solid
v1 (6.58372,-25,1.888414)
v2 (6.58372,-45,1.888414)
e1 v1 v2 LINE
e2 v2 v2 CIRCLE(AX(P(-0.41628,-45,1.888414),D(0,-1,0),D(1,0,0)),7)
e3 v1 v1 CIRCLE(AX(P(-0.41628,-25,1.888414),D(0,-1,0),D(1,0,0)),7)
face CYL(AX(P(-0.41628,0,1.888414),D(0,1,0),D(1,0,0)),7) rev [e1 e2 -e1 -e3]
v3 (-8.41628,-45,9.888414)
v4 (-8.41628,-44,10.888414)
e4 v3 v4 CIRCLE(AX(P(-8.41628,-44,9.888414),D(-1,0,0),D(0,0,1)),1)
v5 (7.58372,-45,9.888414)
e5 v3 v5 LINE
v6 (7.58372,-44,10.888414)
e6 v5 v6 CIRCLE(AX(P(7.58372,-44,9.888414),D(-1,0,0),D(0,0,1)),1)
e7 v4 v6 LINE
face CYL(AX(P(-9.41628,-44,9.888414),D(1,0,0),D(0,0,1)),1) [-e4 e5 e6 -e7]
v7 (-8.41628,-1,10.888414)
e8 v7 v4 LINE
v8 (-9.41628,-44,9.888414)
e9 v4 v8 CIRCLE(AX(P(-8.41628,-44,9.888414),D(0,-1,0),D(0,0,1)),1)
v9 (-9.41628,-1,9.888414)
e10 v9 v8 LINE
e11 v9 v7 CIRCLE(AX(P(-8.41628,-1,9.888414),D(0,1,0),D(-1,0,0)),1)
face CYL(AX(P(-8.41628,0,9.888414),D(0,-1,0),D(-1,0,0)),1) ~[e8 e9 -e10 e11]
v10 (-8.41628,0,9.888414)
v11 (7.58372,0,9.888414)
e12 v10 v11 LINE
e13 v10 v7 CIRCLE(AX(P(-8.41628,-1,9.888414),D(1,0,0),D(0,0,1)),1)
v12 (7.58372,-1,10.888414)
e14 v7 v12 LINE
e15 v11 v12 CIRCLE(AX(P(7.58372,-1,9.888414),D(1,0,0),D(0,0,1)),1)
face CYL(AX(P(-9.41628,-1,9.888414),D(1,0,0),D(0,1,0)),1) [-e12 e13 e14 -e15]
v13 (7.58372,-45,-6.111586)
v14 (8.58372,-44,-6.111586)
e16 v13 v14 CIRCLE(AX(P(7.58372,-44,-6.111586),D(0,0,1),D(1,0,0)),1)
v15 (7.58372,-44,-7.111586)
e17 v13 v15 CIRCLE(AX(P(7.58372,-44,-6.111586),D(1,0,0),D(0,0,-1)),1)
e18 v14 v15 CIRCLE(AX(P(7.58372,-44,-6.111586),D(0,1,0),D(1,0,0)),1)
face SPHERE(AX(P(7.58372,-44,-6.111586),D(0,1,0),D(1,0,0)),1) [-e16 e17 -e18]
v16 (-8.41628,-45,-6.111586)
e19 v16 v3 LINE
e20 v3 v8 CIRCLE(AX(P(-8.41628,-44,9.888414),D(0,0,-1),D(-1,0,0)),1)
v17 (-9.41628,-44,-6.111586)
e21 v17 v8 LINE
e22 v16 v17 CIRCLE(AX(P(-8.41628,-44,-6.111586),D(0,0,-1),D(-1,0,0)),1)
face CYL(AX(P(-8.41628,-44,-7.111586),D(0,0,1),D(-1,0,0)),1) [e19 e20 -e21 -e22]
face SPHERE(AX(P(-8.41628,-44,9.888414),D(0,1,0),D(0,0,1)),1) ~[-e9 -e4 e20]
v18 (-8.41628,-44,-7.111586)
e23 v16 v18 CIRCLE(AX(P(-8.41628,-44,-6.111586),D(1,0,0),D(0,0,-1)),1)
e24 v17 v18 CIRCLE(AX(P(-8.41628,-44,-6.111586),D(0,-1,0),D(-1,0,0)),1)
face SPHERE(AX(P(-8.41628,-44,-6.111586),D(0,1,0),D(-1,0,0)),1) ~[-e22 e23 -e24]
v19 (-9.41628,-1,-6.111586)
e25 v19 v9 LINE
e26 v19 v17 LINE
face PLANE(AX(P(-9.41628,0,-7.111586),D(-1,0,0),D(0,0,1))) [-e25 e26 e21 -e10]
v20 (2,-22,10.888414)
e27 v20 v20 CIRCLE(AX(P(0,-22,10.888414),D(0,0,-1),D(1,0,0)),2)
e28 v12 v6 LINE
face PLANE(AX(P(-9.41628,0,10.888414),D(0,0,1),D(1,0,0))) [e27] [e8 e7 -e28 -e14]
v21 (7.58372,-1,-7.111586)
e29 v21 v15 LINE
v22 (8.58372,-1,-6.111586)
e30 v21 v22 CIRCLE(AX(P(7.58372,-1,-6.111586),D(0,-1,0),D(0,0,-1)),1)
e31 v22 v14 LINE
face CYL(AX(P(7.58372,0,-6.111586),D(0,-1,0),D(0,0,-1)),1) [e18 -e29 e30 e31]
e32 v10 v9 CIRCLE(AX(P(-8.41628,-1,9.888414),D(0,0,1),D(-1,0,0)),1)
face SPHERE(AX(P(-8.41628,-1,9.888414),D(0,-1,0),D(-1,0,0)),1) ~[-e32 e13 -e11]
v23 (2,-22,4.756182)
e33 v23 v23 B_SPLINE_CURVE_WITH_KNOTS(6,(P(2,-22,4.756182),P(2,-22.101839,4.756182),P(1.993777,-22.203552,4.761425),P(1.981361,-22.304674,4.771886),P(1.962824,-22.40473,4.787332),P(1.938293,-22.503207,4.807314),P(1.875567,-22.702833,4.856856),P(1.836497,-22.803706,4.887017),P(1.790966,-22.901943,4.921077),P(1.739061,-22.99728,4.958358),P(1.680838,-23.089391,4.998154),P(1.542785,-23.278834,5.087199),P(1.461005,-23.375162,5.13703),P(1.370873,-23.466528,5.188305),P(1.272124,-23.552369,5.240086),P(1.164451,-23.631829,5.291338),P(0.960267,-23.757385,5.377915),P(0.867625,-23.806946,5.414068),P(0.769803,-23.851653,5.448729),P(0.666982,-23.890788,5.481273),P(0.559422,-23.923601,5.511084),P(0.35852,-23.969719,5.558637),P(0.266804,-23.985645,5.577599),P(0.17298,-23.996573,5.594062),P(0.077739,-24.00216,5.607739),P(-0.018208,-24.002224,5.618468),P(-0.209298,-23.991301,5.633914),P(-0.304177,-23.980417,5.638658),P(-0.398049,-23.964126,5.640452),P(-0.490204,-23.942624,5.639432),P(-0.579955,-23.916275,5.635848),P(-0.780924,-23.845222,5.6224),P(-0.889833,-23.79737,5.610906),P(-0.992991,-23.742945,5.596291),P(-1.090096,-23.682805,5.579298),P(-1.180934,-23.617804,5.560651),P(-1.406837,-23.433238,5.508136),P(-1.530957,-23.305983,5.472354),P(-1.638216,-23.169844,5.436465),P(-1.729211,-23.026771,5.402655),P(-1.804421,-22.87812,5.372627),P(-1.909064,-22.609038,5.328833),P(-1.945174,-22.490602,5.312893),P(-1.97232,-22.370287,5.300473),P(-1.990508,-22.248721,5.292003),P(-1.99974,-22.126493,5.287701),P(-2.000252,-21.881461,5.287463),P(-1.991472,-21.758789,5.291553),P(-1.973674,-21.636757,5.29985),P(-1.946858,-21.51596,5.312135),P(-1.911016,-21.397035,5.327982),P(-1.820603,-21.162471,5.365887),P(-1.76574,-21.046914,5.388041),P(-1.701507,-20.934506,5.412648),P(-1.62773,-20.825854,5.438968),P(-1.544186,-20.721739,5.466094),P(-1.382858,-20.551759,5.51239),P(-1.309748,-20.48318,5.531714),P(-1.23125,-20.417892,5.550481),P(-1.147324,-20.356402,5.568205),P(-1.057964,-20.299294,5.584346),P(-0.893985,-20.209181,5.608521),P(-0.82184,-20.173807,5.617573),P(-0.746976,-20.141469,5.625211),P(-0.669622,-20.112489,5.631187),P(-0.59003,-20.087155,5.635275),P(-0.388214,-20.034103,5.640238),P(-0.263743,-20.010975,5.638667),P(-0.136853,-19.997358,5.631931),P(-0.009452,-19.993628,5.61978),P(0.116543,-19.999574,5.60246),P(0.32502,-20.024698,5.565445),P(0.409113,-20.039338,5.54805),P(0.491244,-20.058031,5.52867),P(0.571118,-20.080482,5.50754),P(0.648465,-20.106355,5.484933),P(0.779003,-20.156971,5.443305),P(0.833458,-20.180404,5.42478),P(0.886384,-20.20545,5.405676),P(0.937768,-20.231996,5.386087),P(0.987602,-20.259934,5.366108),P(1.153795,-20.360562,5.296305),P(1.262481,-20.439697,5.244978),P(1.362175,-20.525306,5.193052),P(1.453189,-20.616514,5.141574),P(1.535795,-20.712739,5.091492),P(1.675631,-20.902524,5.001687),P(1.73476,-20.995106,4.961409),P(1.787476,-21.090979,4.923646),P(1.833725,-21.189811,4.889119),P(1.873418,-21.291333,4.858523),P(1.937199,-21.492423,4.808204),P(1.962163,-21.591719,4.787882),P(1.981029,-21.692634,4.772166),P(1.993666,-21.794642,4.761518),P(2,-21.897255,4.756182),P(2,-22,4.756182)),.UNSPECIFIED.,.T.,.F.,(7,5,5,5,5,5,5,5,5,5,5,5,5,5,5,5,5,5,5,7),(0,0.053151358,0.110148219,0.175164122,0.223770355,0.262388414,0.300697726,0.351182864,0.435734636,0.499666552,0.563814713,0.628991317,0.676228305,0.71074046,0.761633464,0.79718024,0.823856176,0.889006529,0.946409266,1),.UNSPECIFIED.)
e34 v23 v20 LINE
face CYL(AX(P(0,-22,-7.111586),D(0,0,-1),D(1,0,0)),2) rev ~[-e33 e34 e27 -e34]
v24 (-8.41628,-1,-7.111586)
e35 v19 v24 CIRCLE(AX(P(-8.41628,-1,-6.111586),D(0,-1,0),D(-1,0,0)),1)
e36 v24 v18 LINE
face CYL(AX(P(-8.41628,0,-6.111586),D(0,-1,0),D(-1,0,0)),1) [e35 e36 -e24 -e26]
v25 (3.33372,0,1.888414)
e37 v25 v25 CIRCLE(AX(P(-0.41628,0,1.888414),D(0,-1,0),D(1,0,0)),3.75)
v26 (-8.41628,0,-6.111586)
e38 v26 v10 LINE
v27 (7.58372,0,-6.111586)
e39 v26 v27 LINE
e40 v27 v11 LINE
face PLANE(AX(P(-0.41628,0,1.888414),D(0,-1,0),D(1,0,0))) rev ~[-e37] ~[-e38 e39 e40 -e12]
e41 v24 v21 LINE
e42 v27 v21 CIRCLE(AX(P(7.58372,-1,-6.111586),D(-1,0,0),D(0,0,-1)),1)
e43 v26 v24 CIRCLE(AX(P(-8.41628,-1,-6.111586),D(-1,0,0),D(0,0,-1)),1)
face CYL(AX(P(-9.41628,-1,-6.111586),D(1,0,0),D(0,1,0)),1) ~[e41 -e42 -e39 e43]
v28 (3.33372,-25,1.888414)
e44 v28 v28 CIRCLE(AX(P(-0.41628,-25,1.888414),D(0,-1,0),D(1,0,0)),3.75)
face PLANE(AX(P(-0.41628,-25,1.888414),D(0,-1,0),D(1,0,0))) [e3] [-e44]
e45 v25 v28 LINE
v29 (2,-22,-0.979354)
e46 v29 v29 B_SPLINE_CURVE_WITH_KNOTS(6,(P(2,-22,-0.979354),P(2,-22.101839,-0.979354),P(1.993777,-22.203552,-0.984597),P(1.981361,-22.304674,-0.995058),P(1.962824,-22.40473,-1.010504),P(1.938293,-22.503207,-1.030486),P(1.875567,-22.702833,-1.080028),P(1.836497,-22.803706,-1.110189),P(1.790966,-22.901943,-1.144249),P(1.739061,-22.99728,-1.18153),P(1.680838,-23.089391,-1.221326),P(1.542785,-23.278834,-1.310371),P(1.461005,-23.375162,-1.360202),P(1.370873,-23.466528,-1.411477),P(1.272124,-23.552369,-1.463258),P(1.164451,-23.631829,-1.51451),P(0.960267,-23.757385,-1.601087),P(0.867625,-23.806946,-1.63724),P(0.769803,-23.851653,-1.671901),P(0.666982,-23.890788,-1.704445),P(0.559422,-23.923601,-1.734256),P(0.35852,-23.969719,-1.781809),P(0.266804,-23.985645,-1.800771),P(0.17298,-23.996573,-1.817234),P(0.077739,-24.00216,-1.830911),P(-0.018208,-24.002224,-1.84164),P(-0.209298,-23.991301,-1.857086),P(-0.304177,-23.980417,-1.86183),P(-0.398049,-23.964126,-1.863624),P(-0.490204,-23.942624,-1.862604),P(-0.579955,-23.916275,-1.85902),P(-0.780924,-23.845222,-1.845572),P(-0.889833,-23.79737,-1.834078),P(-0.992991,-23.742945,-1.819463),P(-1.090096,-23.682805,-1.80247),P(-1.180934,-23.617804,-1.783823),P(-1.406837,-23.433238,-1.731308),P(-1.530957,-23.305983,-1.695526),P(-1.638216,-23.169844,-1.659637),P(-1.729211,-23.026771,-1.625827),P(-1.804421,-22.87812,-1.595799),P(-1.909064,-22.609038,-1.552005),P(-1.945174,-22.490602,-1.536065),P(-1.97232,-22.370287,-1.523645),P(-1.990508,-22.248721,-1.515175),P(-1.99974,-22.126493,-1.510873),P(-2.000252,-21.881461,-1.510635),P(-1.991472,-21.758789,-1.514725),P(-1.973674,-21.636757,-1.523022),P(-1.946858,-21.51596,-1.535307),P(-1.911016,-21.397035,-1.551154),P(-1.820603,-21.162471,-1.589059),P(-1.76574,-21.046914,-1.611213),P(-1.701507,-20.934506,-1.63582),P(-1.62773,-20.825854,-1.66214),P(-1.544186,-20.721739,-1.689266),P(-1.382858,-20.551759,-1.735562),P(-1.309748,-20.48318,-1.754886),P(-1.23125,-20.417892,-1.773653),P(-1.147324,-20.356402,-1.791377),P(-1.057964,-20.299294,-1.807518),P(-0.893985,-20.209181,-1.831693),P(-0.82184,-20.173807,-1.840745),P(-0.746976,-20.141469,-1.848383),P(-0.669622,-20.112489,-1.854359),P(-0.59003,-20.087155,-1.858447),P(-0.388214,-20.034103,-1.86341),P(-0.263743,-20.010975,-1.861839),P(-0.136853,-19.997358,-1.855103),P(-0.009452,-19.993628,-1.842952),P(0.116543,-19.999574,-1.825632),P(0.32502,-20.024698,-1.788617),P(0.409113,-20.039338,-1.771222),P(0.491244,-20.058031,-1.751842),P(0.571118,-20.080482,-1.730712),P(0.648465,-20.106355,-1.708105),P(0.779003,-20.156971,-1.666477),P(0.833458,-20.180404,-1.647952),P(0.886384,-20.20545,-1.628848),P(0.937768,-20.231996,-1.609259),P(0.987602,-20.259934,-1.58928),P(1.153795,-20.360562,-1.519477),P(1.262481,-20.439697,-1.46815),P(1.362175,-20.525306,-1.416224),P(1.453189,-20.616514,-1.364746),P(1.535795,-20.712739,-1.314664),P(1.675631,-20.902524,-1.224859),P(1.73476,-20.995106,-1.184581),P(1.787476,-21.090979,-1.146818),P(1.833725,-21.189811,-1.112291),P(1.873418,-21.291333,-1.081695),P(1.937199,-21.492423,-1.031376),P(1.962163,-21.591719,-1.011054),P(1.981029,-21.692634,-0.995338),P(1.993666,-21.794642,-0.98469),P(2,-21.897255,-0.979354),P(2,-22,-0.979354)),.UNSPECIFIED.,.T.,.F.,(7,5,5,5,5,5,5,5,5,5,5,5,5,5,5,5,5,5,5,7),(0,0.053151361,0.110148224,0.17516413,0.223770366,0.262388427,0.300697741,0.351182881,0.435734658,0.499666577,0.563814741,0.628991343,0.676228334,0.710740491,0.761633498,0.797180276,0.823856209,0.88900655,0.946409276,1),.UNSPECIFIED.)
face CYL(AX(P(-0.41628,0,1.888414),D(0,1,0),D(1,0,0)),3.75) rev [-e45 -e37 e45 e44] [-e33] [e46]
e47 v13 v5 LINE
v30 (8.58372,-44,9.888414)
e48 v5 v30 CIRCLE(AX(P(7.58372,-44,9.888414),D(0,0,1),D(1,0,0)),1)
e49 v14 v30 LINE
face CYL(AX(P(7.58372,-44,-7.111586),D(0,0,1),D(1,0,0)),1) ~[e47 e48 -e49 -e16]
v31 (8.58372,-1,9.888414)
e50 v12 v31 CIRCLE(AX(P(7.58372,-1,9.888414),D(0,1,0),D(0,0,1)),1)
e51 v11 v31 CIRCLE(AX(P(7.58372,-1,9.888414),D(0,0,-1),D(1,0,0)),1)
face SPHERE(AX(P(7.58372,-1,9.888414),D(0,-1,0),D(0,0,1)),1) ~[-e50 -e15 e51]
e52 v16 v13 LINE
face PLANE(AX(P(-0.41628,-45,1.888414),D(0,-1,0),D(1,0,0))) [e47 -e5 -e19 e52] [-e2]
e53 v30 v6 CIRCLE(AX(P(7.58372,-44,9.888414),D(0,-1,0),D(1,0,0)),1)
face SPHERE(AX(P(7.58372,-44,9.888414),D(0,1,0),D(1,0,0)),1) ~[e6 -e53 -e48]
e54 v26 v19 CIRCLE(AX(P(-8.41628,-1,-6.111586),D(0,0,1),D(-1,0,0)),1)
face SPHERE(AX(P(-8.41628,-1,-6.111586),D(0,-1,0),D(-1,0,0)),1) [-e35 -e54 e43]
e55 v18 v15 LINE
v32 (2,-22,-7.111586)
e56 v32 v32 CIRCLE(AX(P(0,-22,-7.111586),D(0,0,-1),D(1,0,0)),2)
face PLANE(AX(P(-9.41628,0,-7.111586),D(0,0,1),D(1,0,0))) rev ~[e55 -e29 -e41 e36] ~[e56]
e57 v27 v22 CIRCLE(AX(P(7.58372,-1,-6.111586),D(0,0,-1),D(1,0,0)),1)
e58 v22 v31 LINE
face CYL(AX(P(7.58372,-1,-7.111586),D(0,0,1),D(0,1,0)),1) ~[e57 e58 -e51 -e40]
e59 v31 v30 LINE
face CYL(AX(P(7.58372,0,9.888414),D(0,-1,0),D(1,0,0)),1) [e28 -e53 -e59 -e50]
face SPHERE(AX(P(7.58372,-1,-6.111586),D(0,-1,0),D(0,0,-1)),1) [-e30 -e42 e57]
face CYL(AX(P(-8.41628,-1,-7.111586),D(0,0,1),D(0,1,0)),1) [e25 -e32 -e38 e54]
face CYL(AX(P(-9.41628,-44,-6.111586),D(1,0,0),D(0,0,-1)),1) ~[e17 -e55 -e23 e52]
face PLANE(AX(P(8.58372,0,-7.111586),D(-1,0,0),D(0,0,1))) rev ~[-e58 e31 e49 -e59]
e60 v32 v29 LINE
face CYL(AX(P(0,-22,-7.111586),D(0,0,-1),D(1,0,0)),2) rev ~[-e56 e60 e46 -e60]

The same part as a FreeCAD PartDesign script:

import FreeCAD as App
import Part
import Sketcher


def edges_at(feature, points):
    """Names of the edges that pass closest to the given points."""
    edges = feature.Shape.Edges
    near = lambda p: min(range(len(edges)), key=lambda i: edges[i].distToShape(Part.Vertex(*p))[0])
    return sorted({f"Edge{near(p) + 1}" for p in points})

doc = App.newDocument("Part")
params = doc.addObject("Spreadsheet::Sheet", "Params")
for row, (alias, value) in enumerate([
    ("sketch1_diameter", "14 mm"),
    ("sketch1_width", "18 mm"),
    ("pad1_length", "45 mm"),
    ("sketch2_diameter", "14 mm"),
    ("sketch2_diameter2", "7.5 mm"),
    ("pad2_length", "25 mm"),
    ("sketch3_diameter", "4 mm"),
    ("pocket1_length", "25 mm"),
    ("fillet_radius", "1 mm"),
], start=1):
    params.set(f"A{row}", alias)
    params.set(f"B{row}", "=" + value)
    params.setAlias(f"B{row}", alias)

body = doc.addObject("PartDesign::Body", "Body")

# Sketch on XZ plane
sketch1 = body.newObject("Sketcher::SketchObject", "Sketch")
sketch1.AttachmentSupport = (doc.getObject("XZ_Plane"), [""])
sketch1.MapMode = "FlatFace"
sketch1.addGeometry([
    Part.LineSegment(App.Vector(-9.41628, 10.888414, 0), App.Vector(-9.41628, -7.111586, 0)),  # 0
    Part.LineSegment(App.Vector(-9.41628, -7.111586, 0), App.Vector(8.58372, -7.111586, 0)),  # 1
    Part.LineSegment(App.Vector(8.58372, -7.111586, 0), App.Vector(8.58372, 10.888414, 0)),  # 2
    Part.LineSegment(App.Vector(8.58372, 10.888414, 0), App.Vector(-9.41628, 10.888414, 0)),  # 3
    Part.Circle(App.Vector(-0.41628, 1.888414, 0), App.Vector(0, 0, 1), 7),  # 4
], False)
sketch1.addConstraint([
    Sketcher.Constraint("Coincident", 0, 2, 1, 1),
    Sketcher.Constraint("Coincident", 1, 2, 2, 1),
    Sketcher.Constraint("Coincident", 2, 2, 3, 1),
    Sketcher.Constraint("Coincident", 3, 2, 0, 1),
    Sketcher.Constraint("Vertical", 0),
    Sketcher.Constraint("Horizontal", 1),
    Sketcher.Constraint("Vertical", 2),
    Sketcher.Constraint("Horizontal", 3),
    Sketcher.Constraint("Equal", 3, 0),
    Sketcher.Constraint("Diameter", 4, 14.0),
    Sketcher.Constraint("DistanceX", 1, 1, 1, 2, 18.0),
    Sketcher.Constraint("DistanceX", 0, 2, 4, 3, 9.0),
    Sketcher.Constraint("DistanceY", 0, 2, 4, 3, 9.0),
    Sketcher.Constraint("DistanceX", 4, 3, -1, 1, 0.41628),
    Sketcher.Constraint("DistanceY", -1, 1, 4, 3, 1.888414),
])
sketch1.setExpression("Constraints[9]", "Params.sketch1_diameter")
sketch1.setExpression("Constraints[10]", "Params.sketch1_width")
pad1 = body.newObject("PartDesign::Pad", "Pad")
pad1.Profile = sketch1
pad1.setExpression("Length", "Params.pad1_length")

# Sketch on XZ plane
sketch2 = body.newObject("Sketcher::SketchObject", "Sketch001")
sketch2.AttachmentSupport = (doc.getObject("XZ_Plane"), [""])
sketch2.MapMode = "FlatFace"
sketch2.addGeometry([
    Part.Circle(App.Vector(-0.41628, 1.888414, 0), App.Vector(0, 0, 1), 7),
    Part.Circle(App.Vector(-0.41628, 1.888414, 0), App.Vector(0, 0, 1), 3.75),
], False)
sketch2.addConstraint([
    Sketcher.Constraint("Coincident", 1, 3, 0, 3),
    Sketcher.Constraint("Diameter", 0, 14.0),
    Sketcher.Constraint("Diameter", 1, 7.5),
    Sketcher.Constraint("DistanceX", 0, 3, -1, 1, 0.41628),
    Sketcher.Constraint("DistanceY", -1, 1, 0, 3, 1.888414),
])
sketch2.setExpression("Constraints[1]", "Params.sketch2_diameter")
sketch2.setExpression("Constraints[2]", "Params.sketch2_diameter2")
pad2 = body.newObject("PartDesign::Pad", "Pad001")
pad2.Profile = sketch2
pad2.setExpression("Length", "Params.pad2_length")

# Sketch on XY plane
sketch3 = body.newObject("Sketcher::SketchObject", "Sketch002")
sketch3.AttachmentSupport = (doc.getObject("XY_Plane"), [""])
sketch3.MapMode = "FlatFace"
sketch3.AttachmentOffset = App.Placement(App.Vector(0, 0, -7.111586), App.Rotation())
sketch3.addGeometry(Part.Circle(App.Vector(0, -22, 0), App.Vector(0, 0, 1), 2), False)
sketch3.addConstraint([
    Sketcher.Constraint("PointOnObject", 0, 3, -2),
    Sketcher.Constraint("Diameter", 0, 4.0),
    Sketcher.Constraint("DistanceY", 0, 3, -1, 1, 22.0),
])
sketch3.setExpression("Constraints[1]", "Params.sketch3_diameter")
pocket1 = body.newObject("PartDesign::Pocket", "Pocket")
pocket1.Profile = sketch3
pocket1.setExpression("Length", "Params.pocket1_length")
pocket1.Reversed = True
doc.recompute()

fillet = body.newObject("PartDesign::Fillet", "Fillet")
fillet.Base = (pocket1, edges_at(pocket1, [
    (-9.416, -22.5, -7.112),
    (8.584, -22.5, -7.112),
    (-9.416, -22.5, 10.888),
    (8.584, -22.5, 10.888),
    (-9.416, 0, 1.888),
    (-0.416, 0, 10.888),
    (-0.416, 0, -7.112),
    (8.584, 0, 1.888),
    (8.584, -45, 1.888),
    (-0.416, -45, 10.888),
    (-9.416, -45, 1.888),
    (-0.416, -45, -7.112),
]))
fillet.setExpression("Radius", "Params.fillet_radius")

doc.recompute()
